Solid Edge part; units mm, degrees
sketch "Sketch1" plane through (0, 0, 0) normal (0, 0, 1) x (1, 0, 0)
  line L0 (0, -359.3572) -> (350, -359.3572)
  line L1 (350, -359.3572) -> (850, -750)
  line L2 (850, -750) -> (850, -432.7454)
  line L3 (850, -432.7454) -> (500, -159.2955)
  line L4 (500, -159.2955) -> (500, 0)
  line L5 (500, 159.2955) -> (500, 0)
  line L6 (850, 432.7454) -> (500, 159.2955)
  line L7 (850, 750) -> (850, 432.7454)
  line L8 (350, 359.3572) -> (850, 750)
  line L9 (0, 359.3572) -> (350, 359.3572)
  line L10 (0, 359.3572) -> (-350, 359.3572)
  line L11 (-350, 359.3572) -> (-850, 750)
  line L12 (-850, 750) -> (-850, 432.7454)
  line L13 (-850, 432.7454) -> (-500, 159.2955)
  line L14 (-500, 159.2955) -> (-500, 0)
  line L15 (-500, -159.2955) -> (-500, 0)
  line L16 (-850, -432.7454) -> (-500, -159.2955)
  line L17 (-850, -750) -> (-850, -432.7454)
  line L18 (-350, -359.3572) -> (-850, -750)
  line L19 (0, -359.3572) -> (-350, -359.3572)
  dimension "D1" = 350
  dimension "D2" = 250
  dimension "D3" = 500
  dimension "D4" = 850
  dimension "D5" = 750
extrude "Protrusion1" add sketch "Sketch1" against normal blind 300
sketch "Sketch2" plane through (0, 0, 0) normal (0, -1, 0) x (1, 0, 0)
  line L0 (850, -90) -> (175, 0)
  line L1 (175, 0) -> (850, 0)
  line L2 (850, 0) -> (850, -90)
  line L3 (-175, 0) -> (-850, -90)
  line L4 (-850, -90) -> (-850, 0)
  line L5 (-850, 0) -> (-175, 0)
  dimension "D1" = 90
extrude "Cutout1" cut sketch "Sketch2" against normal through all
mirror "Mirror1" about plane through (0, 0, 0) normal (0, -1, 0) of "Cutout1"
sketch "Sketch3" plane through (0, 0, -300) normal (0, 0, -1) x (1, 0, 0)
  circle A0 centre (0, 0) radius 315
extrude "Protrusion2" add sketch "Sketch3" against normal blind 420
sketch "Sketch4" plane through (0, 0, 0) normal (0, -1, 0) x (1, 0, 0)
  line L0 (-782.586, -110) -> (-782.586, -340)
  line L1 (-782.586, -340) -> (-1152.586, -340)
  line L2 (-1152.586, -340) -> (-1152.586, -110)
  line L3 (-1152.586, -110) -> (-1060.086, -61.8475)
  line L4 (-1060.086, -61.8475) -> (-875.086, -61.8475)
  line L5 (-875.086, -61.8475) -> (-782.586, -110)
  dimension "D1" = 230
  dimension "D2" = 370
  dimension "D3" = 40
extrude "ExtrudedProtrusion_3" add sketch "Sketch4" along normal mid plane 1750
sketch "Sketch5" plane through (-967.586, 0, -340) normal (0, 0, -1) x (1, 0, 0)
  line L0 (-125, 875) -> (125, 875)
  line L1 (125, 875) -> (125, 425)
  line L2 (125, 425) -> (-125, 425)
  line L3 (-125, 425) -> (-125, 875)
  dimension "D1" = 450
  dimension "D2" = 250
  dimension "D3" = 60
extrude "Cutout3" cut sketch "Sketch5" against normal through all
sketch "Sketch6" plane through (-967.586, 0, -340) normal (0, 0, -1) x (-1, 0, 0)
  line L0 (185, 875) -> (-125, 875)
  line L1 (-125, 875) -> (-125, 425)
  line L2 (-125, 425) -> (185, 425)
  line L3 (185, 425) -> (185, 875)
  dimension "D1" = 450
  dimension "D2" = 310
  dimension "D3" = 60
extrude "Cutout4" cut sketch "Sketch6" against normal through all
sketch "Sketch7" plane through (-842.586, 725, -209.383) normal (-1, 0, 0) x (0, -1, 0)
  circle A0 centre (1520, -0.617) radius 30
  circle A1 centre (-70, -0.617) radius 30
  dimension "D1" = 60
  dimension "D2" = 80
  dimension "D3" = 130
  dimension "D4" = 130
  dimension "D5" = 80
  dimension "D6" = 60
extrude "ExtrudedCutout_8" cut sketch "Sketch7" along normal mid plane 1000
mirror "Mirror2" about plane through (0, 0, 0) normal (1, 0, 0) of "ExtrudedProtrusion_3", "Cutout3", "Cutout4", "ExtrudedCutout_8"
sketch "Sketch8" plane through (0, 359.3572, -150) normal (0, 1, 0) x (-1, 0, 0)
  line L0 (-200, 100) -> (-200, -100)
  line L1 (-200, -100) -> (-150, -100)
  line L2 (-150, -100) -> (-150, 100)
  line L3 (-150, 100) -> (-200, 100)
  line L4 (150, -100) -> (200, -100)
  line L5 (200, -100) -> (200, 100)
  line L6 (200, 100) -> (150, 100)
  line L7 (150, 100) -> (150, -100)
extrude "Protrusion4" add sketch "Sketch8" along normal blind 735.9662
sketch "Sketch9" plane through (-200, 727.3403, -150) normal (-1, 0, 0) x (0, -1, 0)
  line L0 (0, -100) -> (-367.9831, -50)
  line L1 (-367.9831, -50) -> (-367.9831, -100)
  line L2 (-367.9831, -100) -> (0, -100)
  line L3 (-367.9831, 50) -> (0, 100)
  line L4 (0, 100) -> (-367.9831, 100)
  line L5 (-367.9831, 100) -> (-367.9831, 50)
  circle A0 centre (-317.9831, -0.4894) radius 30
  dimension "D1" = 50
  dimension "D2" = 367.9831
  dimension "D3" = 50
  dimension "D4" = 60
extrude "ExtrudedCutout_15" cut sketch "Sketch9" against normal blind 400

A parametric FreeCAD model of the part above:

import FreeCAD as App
import Part
import Sketcher
Q = App.Units.Quantity


def add_polygon(sketch, points):
    """Adds a closed chain of lines whose ends are joined by coincident constraints."""
    first, n = sketch.GeometryCount, len(points)
    for a, b in zip(points, points[1:] + points[:1]):
        sketch.addGeometry(Part.LineSegment(App.Vector(*a, 0), App.Vector(*b, 0)), False)
    for i in range(n):
        sketch.addConstraint(Sketcher.Constraint("Coincident", first + i, 2, first + (i + 1) % n, 1))

doc = App.newDocument("Part")
body = doc.addObject("PartDesign::Body", "Body")

sketch1 = body.newObject("Sketcher::SketchObject", "Sketch")
sketch1.AttachmentSupport = (doc.getObject("XY_Plane"), [""])
sketch1.MapMode = "FlatFace"
add_polygon(sketch1, [(-350, -359), (350, -359), (850, -750), (850, -433), (500, -159), (500, 159), (850, 433), (850, 750), (350, 359), (-350, 359), (-850, 750), (-850, 433), (-500, 159), (-500, -159), (-850, -433), (-850, -750)])
sketch1.addConstraint([
    Sketcher.Constraint("Horizontal", 0),
    Sketcher.Constraint("Vertical", 2),
    Sketcher.Constraint("Vertical", 4),
    Sketcher.Constraint("Vertical", 6),
    Sketcher.Constraint("Horizontal", 8),
    Sketcher.Constraint("Vertical", 10),
    Sketcher.Constraint("Vertical", 12),
    Sketcher.Constraint("Vertical", 14),
    Sketcher.Constraint("Symmetric", 0, 2, 8, 2, -1, 1),
    Sketcher.Constraint("Symmetric", 1, 2, 9, 2, -1, 1),
    Sketcher.Constraint("Symmetric", 3, 2, 11, 2, -1, 1),
    Sketcher.Constraint("Symmetric", 5, 2, 13, 2, -1, 1),
    Sketcher.Constraint("Symmetric", 6, 2, 9, 2, -2),
    Sketcher.Constraint("Parallel", 1, 3),
    Sketcher.Constraint("Parallel", 5, 7),
    Sketcher.Constraint("Parallel", 9, 11),
    Sketcher.Constraint("Parallel", 7, 13),
    Sketcher.Constraint("Parallel", 13, 15),
    Sketcher.Constraint("Horizontal", 5, 2, 10, 2),
    Sketcher.Constraint("Horizontal", 4, 2, 11, 2),
    Sketcher.Constraint("Horizontal", 1, 2, 14, 2),
    Sketcher.Constraint("DistanceX", 0, 1, 0, 2, 700.0),
    Sketcher.Constraint("Angle", 1, Q("-38 deg")),
    Sketcher.Constraint("DistanceX", -1, 1, 1, 2, 850.0),
    Sketcher.Constraint("DistanceY", 1, 2, -1, 1, 750.0),
    Sketcher.Constraint("DistanceX", -1, 1, 3, 2, 500.0),
    Sketcher.Constraint("DistanceY", 4, 1, 4, 2, 318.591),
])
pad1 = body.newObject("PartDesign::Pad", "Pad")
pad1.Profile = sketch1
pad1.Length = 300
pad1.Reversed = True

sketch2 = body.newObject("Sketcher::SketchObject", "Sketch001")
sketch2.AttachmentSupport = (doc.getObject("XZ_Plane"), [""])
sketch2.MapMode = "FlatFace"
add_polygon(sketch2, [(175, 0), (850, -90), (850, 0)])
add_polygon(sketch2, [(-850, -90), (-175, 0), (-850, 0)])
sketch2.addConstraint([
    Sketcher.Constraint("Vertical", 1),
    Sketcher.Constraint("Horizontal", 2),
    Sketcher.Constraint("Horizontal", 4),
    Sketcher.Constraint("Vertical", 5),
    Sketcher.Constraint("Symmetric", 2, 2, 3, 2, -1, 1),
    Sketcher.Constraint("Symmetric", 1, 2, 4, 2, -2),
    Sketcher.Constraint("Horizontal", 0, 2, 5, 2),
    Sketcher.Constraint("DistanceX", -1, 1, 0, 2, 850.0),
    Sketcher.Constraint("DistanceX", 2, 2, 2, 1, 675.0),
    Sketcher.Constraint("DistanceY", 1, 1, 1, 2, 90.0),
])
pocket1 = body.newObject("PartDesign::Pocket", "Pocket")
pocket1.Profile = sketch2
pocket1.Type = "ThroughAll"
doc.recompute()

mirrored = body.newObject("PartDesign::Mirrored", "Mirrored")
mirrored.Originals = [pocket1]
mirrored.MirrorPlane = (doc.getObject("XZ_Plane"), [""])
body.Tip = mirrored

sketch3 = body.newObject("Sketcher::SketchObject", "Sketch002")
sketch3.AttachmentSupport = (doc.getObject("XY_Plane"), [""])
sketch3.MapMode = "FlatFace"
sketch3.AttachmentOffset = App.Placement(App.Vector(0, 0, -300), App.Rotation())
sketch3.addGeometry(Part.Circle(App.Vector(0, 0, 0), App.Vector(0, 0, 1), 315), False)
sketch3.addConstraint([
    Sketcher.Constraint("Coincident", 0, 3, -1, 1),
    Sketcher.Constraint("Diameter", 0, 630.0),
])
pad2 = body.newObject("PartDesign::Pad", "Pad001")
pad2.Profile = sketch3
pad2.Length = 420

sketch4 = body.newObject("Sketcher::SketchObject", "Sketch003")
sketch4.AttachmentSupport = (doc.getObject("XZ_Plane"), [""])
sketch4.MapMode = "FlatFace"
add_polygon(sketch4, [(-783, -340), (-783, -110), (-875, -62), (-1060, -62), (-1153, -110), (-1153, -340)])
sketch4.addConstraint([
    Sketcher.Constraint("Vertical", 0),
    Sketcher.Constraint("Horizontal", 2),
    Sketcher.Constraint("Vertical", 4),
    Sketcher.Constraint("Horizontal", 5),
    Sketcher.Constraint("Horizontal", 0, 2, 3, 2),
    Sketcher.Constraint("Equal", 1, 3),
    Sketcher.Constraint("DistanceX", 2, 2, 2, 1, 185.0),
    Sketcher.Constraint("DistanceX", 5, 1, 5, 2, 370.0),
    Sketcher.Constraint("DistanceY", 0, 1, 0, 2, 230.0),
    Sketcher.Constraint("DistanceX", 0, 2, -1, 1, 782.586),
    Sketcher.Constraint("DistanceY", 0, 2, -1, 1, 110.0),
    Sketcher.Constraint("Angle", 1, Q("152.5 deg")),
])
pad3 = body.newObject("PartDesign::Pad", "Pad002")
pad3.Profile = sketch4
pad3.Length = 1750
pad3.Midplane = True

sketch5 = body.newObject("Sketcher::SketchObject", "Sketch004")
sketch5.AttachmentSupport = (doc.getObject("XY_Plane"), [""])
sketch5.MapMode = "FlatFace"
sketch5.AttachmentOffset = App.Placement(App.Vector(0, 0, -340), App.Rotation())
add_polygon(sketch5, [(-843, -875), (-1093, -875), (-1093, -425), (-843, -425)])
sketch5.addConstraint([
    Sketcher.Constraint("Horizontal", 0),
    Sketcher.Constraint("Vertical", 1),
    Sketcher.Constraint("Horizontal", 2),
    Sketcher.Constraint("Vertical", 3),
    Sketcher.Constraint("DistanceX", 0, 2, 0, 1, 250.0),
    Sketcher.Constraint("DistanceY", 1, 1, 1, 2, 450.0),
    Sketcher.Constraint("DistanceY", 0, 2, -1, 1, 875.0),
    Sketcher.Constraint("DistanceX", 0, 2, -1, 1, 1092.586),
])
pocket2 = body.newObject("PartDesign::Pocket", "Pocket001")
pocket2.Profile = sketch5
pocket2.Type = "ThroughAll"
pocket2.Reversed = True

sketch6 = body.newObject("Sketcher::SketchObject", "Sketch005")
sketch6.AttachmentSupport = (doc.getObject("XY_Plane"), [""])
sketch6.MapMode = "FlatFace"
sketch6.AttachmentOffset = App.Placement(App.Vector(0, 0, -340), App.Rotation())
add_polygon(sketch6, [(-1153, 425), (-1153, 875), (-843, 875), (-843, 425)])
sketch6.addConstraint([
    Sketcher.Constraint("Vertical", 0),
    Sketcher.Constraint("Horizontal", 1),
    Sketcher.Constraint("Vertical", 2),
    Sketcher.Constraint("Horizontal", 3),
    Sketcher.Constraint("DistanceX", 1, 1, 1, 2, 310.0),
    Sketcher.Constraint("DistanceY", 0, 1, 0, 2, 450.0),
    Sketcher.Constraint("DistanceY", -1, 1, 0, 2, 875.0),
    Sketcher.Constraint("DistanceX", 0, 2, -1, 1, 1152.586),
])
pocket3 = body.newObject("PartDesign::Pocket", "Pocket002")
pocket3.Profile = sketch6
pocket3.Type = "ThroughAll"
pocket3.Reversed = True

sketch7 = body.newObject("Sketcher::SketchObject", "Sketch006")
sketch7.AttachmentSupport = (doc.getObject("YZ_Plane"), [""])
sketch7.MapMode = "FlatFace"
sketch7.AttachmentOffset = App.Placement(App.Vector(0, 0, -842.586), App.Rotation())
sketch7.addGeometry([
    Part.Circle(App.Vector(-795, -210, 0), App.Vector(0, 0, 1), 30),
    Part.Circle(App.Vector(795, -210, 0), App.Vector(0, 0, 1), 30),
], False)
sketch7.addConstraint([
    Sketcher.Constraint("Equal", 0, 1),
    Sketcher.Constraint("Symmetric", 0, 3, 1, 3, -2),
    Sketcher.Constraint("Diameter", 0, 60.0),
    Sketcher.Constraint("DistanceX", 0, 3, -1, 1, 795.0),
    Sketcher.Constraint("DistanceY", 0, 3, -1, 1, 210.0),
])
pocket4 = body.newObject("PartDesign::Pocket", "Pocket003")
pocket4.Profile = sketch7
pocket4.Length = 1000
pocket4.Midplane = True
doc.recompute()

mirrored2 = body.newObject("PartDesign::Mirrored", "Mirrored001")
mirrored2.Originals = [pad3, pocket2, pocket3, pocket4]
mirrored2.MirrorPlane = (doc.getObject("YZ_Plane"), [""])
body.Tip = mirrored2

sketch8 = body.newObject("Sketcher::SketchObject", "Sketch007")
sketch8.AttachmentSupport = (doc.getObject("XZ_Plane"), [""])
sketch8.MapMode = "FlatFace"
sketch8.AttachmentOffset = App.Placement(App.Vector(0, 0, -359.3572), App.Rotation())
add_polygon(sketch8, [(150, -50), (200, -50), (200, -250), (150, -250)])
add_polygon(sketch8, [(-150, -50), (-150, -250), (-200, -250), (-200, -50)])
sketch8.addConstraint([
    Sketcher.Constraint("Horizontal", 0),
    Sketcher.Constraint("Vertical", 1),
    Sketcher.Constraint("Horizontal", 2),
    Sketcher.Constraint("Vertical", 3),
    Sketcher.Constraint("Vertical", 4),
    Sketcher.Constraint("Horizontal", 5),
    Sketcher.Constraint("Vertical", 6),
    Sketcher.Constraint("Horizontal", 7),
    Sketcher.Constraint("Symmetric", 2, 2, 4, 2, -2),
    Sketcher.Constraint("Symmetric", 0, 2, 6, 2, -2),
    Sketcher.Constraint("DistanceX", 0, 1, 0, 2, 50.0),
    Sketcher.Constraint("DistanceY", 1, 2, 1, 1, 200.0),
    Sketcher.Constraint("DistanceX", -1, 1, 0, 2, 200.0),
    Sketcher.Constraint("DistanceY", 0, 2, -1, 1, 50.0),
])
pad4 = body.newObject("PartDesign::Pad", "Pad003")
pad4.Profile = sketch8
pad4.Length = 735.9662
pad4.Reversed = True

sketch9 = body.newObject("Sketcher::SketchObject", "Sketch008")
sketch9.AttachmentSupport = (doc.getObject("YZ_Plane"), [""])
sketch9.MapMode = "FlatFace"
sketch9.AttachmentOffset = App.Placement(App.Vector(0, 0, -200), App.Rotation())
add_polygon(sketch9, [(1095, -250), (727, -250), (1095, -200)])
add_polygon(sketch9, [(1095, -50), (1095, -100), (727, -50)])
sketch9.addGeometry(Part.Circle(App.Vector(1045, -150, 0), App.Vector(0, 0, 1), 30), False)
sketch9.addConstraint([
    Sketcher.Constraint("Horizontal", 0),
    Sketcher.Constraint("Vertical", 2),
    Sketcher.Constraint("Vertical", 3),
    Sketcher.Constraint("Horizontal", 5),
    Sketcher.Constraint("Vertical", 2, 2, 3, 2),
    Sketcher.Constraint("Vertical", 0, 2, 4, 2),
    Sketcher.Constraint("Equal", 2, 3),
    Sketcher.Constraint("Diameter", 6, 60.0),
    Sketcher.Constraint("DistanceX", 0, 2, 0, 1, 367.983),
    Sketcher.Constraint("DistanceY", 2, 2, 2, 1, 50.0),
    Sketcher.Constraint("DistanceY", 0, 2, -1, 1, 250.0),
    Sketcher.Constraint("DistanceY", 3, 2, -1, 1, 100.0),
    Sketcher.Constraint("DistanceX", 6, 3, 1, 2, 50.0),
    Sketcher.Constraint("DistanceX", -1, 1, 6, 3, 1045.3234),
    Sketcher.Constraint("DistanceY", 6, 3, -1, 1, 150.4894),
])
pocket5 = body.newObject("PartDesign::Pocket", "Pocket004")
pocket5.Profile = sketch9
pocket5.Length = 400
pocket5.Reversed = True

doc.recompute()
